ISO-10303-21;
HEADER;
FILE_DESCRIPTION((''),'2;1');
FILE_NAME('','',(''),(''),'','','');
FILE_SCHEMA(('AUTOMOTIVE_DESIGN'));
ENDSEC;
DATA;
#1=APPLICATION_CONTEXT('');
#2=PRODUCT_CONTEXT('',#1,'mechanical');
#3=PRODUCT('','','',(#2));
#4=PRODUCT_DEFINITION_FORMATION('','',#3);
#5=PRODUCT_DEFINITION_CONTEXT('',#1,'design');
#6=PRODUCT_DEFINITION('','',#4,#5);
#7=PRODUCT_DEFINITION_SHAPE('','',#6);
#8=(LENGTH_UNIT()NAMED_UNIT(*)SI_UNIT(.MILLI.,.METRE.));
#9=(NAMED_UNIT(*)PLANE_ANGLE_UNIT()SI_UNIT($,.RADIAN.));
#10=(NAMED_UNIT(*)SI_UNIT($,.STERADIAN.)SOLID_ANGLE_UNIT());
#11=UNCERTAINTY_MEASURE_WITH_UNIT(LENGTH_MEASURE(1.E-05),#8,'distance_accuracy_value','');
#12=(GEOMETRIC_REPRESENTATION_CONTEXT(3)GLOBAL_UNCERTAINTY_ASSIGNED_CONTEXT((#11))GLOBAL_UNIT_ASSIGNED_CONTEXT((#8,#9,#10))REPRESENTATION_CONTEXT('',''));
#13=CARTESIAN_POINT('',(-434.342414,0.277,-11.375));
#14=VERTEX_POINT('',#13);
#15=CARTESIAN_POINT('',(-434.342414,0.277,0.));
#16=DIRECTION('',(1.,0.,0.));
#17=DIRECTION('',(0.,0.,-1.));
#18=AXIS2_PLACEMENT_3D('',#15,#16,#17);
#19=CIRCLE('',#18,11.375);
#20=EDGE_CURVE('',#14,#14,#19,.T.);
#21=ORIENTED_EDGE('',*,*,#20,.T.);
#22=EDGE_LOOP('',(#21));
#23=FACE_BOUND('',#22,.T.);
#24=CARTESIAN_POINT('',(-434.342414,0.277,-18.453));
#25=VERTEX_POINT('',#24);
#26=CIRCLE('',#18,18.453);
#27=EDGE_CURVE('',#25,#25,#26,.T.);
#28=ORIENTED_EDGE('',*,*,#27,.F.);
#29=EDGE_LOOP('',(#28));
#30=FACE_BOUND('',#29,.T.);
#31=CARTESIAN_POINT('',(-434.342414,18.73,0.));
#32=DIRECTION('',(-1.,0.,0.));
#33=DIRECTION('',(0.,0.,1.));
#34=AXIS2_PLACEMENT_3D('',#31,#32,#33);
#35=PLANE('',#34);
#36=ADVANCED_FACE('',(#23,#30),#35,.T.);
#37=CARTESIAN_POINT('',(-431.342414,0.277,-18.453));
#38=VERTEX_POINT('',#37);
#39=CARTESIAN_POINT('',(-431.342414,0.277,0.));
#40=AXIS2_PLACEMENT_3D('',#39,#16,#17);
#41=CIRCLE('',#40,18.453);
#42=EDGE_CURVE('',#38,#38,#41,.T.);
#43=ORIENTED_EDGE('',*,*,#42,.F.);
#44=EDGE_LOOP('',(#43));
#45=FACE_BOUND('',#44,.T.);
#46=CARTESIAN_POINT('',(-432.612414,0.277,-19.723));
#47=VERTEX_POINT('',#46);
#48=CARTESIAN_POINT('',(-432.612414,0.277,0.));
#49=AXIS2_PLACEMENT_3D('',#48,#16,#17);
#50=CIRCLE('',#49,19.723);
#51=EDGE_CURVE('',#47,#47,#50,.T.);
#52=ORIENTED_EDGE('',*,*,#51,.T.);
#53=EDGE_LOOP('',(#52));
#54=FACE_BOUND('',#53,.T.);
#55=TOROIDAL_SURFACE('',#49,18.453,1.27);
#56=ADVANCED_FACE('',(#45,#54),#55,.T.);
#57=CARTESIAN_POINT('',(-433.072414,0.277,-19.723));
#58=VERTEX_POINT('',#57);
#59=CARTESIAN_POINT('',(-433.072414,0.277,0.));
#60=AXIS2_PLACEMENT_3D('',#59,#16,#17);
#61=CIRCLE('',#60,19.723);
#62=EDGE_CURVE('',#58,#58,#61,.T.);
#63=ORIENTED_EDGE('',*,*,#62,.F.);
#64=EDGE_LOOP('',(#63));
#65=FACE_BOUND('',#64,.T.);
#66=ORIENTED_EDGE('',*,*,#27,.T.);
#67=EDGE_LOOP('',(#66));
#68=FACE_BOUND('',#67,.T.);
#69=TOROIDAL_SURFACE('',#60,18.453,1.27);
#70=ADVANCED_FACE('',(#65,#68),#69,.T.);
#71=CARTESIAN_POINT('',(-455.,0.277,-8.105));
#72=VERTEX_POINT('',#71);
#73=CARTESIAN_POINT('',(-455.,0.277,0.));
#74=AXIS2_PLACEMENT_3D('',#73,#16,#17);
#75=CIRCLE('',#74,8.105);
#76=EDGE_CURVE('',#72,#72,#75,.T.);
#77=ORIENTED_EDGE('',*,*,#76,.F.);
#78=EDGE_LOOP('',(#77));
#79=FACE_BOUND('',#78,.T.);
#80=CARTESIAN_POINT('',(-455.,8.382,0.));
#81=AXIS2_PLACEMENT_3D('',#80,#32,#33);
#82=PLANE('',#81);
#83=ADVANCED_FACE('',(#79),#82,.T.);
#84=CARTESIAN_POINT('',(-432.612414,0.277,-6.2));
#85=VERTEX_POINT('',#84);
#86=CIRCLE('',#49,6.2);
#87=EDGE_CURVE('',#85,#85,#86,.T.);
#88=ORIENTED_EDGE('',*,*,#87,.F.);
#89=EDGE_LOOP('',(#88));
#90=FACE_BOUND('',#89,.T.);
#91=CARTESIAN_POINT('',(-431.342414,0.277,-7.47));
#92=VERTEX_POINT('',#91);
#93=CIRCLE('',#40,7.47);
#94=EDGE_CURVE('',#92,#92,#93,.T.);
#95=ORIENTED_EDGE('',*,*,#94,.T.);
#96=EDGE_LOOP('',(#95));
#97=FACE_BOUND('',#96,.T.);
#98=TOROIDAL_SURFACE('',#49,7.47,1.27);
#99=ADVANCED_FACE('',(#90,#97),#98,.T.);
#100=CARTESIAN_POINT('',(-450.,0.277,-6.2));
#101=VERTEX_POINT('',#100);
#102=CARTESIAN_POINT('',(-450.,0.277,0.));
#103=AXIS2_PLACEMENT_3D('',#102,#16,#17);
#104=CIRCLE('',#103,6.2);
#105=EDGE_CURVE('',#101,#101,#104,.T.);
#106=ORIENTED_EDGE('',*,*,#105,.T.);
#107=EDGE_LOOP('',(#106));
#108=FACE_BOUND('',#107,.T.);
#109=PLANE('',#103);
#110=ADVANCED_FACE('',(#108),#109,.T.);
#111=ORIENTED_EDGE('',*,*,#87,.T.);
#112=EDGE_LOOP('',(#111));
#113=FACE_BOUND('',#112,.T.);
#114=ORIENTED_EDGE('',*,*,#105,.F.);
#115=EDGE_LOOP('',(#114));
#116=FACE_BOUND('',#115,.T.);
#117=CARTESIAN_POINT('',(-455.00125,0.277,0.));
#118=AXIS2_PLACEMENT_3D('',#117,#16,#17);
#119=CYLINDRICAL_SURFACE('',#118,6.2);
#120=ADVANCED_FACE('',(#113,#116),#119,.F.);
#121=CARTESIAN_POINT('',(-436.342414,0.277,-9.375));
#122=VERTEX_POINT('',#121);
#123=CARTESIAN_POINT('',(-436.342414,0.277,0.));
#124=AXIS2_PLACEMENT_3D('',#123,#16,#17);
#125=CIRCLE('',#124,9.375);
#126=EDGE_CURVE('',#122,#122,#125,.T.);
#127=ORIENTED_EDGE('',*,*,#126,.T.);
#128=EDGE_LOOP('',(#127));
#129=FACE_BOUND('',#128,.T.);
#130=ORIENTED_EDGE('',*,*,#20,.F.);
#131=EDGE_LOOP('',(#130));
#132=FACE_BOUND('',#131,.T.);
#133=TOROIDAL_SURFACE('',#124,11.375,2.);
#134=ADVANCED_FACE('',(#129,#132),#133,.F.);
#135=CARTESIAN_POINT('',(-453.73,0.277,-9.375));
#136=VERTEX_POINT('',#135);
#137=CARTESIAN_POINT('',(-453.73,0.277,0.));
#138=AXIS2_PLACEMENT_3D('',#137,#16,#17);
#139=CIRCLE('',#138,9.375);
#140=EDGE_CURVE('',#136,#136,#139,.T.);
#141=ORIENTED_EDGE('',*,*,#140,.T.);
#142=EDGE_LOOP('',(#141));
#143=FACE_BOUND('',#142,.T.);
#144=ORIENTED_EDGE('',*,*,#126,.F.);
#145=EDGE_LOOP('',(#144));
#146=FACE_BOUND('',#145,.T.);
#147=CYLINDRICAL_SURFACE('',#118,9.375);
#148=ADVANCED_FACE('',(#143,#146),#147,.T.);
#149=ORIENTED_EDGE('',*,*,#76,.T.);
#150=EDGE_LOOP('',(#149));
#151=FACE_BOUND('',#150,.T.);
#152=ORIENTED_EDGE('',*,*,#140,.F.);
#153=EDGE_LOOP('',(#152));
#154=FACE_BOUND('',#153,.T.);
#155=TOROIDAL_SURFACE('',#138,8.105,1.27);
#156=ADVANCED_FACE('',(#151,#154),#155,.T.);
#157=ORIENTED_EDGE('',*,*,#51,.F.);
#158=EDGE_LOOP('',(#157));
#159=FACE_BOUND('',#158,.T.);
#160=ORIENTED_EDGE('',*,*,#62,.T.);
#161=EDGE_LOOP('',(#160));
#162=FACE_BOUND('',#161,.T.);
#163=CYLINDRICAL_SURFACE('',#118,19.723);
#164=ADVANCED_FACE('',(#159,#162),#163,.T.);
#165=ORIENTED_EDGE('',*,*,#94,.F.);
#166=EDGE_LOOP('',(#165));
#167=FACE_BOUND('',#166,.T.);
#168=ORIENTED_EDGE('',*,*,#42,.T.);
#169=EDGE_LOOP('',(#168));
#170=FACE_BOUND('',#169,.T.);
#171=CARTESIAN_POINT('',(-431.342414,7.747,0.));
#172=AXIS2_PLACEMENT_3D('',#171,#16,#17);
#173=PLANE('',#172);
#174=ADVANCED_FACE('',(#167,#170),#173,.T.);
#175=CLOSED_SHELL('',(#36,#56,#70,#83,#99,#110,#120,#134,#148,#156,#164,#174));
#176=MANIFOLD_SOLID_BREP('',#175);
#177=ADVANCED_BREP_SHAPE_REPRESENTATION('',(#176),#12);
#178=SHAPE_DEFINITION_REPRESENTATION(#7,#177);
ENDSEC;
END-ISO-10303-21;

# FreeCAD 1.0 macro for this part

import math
import FreeCAD as App
import Part
import Sketcher

doc = App.newDocument("Part")
params = doc.addObject("Spreadsheet::Sheet", "Params")
for row, (alias, value) in enumerate([
    ("sketch1_radius", "2 mm"),
    ("sketch1_width", "5 mm"),
    ("sketch1_radius2", "1.27 mm"),
    ("sketch1_height", "6.2 mm"),
    ("revolution_angle", "360 deg"),
], start=1):
    params.set(f"A{row}", alias)
    params.set(f"B{row}", "=" + value)
    params.setAlias(f"B{row}", alias)

body = doc.addObject("PartDesign::Body", "Body")

sketch1 = body.newObject("Sketcher::SketchObject", "Sketch")
sketch1.AttachmentSupport = (doc.getObject("XY_Plane"), [""])
sketch1.MapMode = "FlatFace"
sketch1.addGeometry(Part.LineSegment(App.Vector(-455, 8.38, 0), App.Vector(-455, 0.28, 0)), False)
sketch1.addGeometry(Part.LineSegment(App.Vector(-455, 0.28, 0), App.Vector(-450, 0.28, 0)), False)
sketch1.addGeometry(Part.LineSegment(App.Vector(-450, 0.28, 0), App.Vector(-450, 6.48, 0)), False)
sketch1.addGeometry(Part.LineSegment(App.Vector(-450, 6.48, 0), App.Vector(-432.61, 6.48, 0)), False)
sketch1.addGeometry(Part.ArcOfCircle(Part.Circle(App.Vector(-432.61, 7.75, 0), App.Vector(0, 0, 1), 1.27), math.radians(-90), math.radians(0)), False)
sketch1.addGeometry(Part.LineSegment(App.Vector(-431.34, 7.75, 0), App.Vector(-431.34, 18.73, 0)), False)
sketch1.addGeometry(Part.ArcOfCircle(Part.Circle(App.Vector(-432.61, 18.73, 0), App.Vector(0, 0, 1), 1.27), math.radians(0), math.radians(90)), False)
sketch1.addGeometry(Part.LineSegment(App.Vector(-432.61, 20, 0), App.Vector(-433.07, 20, 0)), False)
sketch1.addGeometry(Part.ArcOfCircle(Part.Circle(App.Vector(-433.07, 18.73, 0), App.Vector(0, 0, 1), 1.27), math.radians(90), math.radians(180)), False)
sketch1.addGeometry(Part.LineSegment(App.Vector(-434.34, 18.73, 0), App.Vector(-434.34, 11.65, 0)), False)
sketch1.addGeometry(Part.ArcOfCircle(Part.Circle(App.Vector(-436.34, 11.65, 0), App.Vector(0, 0, 1), 2), math.radians(-90), math.radians(0)), False)
sketch1.addGeometry(Part.LineSegment(App.Vector(-436.34, 9.65, 0), App.Vector(-453.73, 9.65, 0)), False)
sketch1.addGeometry(Part.ArcOfCircle(Part.Circle(App.Vector(-453.73, 8.38, 0), App.Vector(0, 0, 1), 1.27), math.radians(90), math.radians(180)), False)
sketch1.addGeometry(Part.LineSegment(App.Vector(-455, 0.28, 0), App.Vector(-431.34, 0.28, 0)), True)
sketch1.addConstraint(Sketcher.Constraint("Coincident", 0, 2, 1, 1))
sketch1.addConstraint(Sketcher.Constraint("Coincident", 1, 2, 2, 1))
sketch1.addConstraint(Sketcher.Constraint("Coincident", 2, 2, 3, 1))
sketch1.addConstraint(Sketcher.Constraint("Tangent", 3, 2, 4, 1))
sketch1.addConstraint(Sketcher.Constraint("Tangent", 4, 2, 5, 1))
sketch1.addConstraint(Sketcher.Constraint("Tangent", 5, 2, 6, 1))
sketch1.addConstraint(Sketcher.Constraint("Tangent", 6, 2, 7, 1))
sketch1.addConstraint(Sketcher.Constraint("Tangent", 7, 2, 8, 1))
sketch1.addConstraint(Sketcher.Constraint("Tangent", 8, 2, 9, 1))
sketch1.addConstraint(Sketcher.Constraint("Tangent", 9, 2, 10, 2))
sketch1.addConstraint(Sketcher.Constraint("Tangent", 10, 1, 11, 1))
sketch1.addConstraint(Sketcher.Constraint("Tangent", 11, 2, 12, 1))
sketch1.addConstraint(Sketcher.Constraint("Tangent", 12, 2, 0, 1))
sketch1.addConstraint(Sketcher.Constraint("Vertical", 0))
sketch1.addConstraint(Sketcher.Constraint("Horizontal", 1))
sketch1.addConstraint(Sketcher.Constraint("Vertical", 2))
sketch1.addConstraint(Sketcher.Constraint("Horizontal", 3))
sketch1.addConstraint(Sketcher.Constraint("Vertical", 5))
sketch1.addConstraint(Sketcher.Constraint("Horizontal", 7))
sketch1.addConstraint(Sketcher.Constraint("Vertical", 9))
sketch1.addConstraint(Sketcher.Constraint("Horizontal", 11))
sketch1.addConstraint(Sketcher.Constraint("Horizontal", 13))
sketch1.addConstraint(Sketcher.Constraint("Coincident", 13, 1, 0, 2))
sketch1.addConstraint(Sketcher.Constraint("Equal", 4, 6))
sketch1.addConstraint(Sketcher.Constraint("Equal", 6, 8))
sketch1.addConstraint(Sketcher.Constraint("Equal", 8, 12))
sketch1.addConstraint(Sketcher.Constraint("Vertical", 5, 2, 13, 2))
sketch1.addConstraint(Sketcher.Constraint("Equal", 3, 11))
sketch1.addConstraint(Sketcher.Constraint("Radius", 10, 2.0))
sketch1.addConstraint(Sketcher.Constraint("DistanceX", 1, 1, 1, 2, 5.0))
sketch1.addConstraint(Sketcher.Constraint("Radius", 4, 1.27))
sketch1.addConstraint(Sketcher.Constraint("DistanceY", 2, 1, 2, 2, 6.2))
sketch1.addConstraint(Sketcher.Constraint("DistanceX", 0, 2, -1, 1, 455.0))
sketch1.addConstraint(Sketcher.Constraint("DistanceY", -1, 1, 6, 2, 20.0))
sketch1.addConstraint(Sketcher.Constraint("DistanceY", 0, 2, 0, 1, 8.105))
sketch1.addConstraint(Sketcher.Constraint("DistanceY", 5, 1, 5, 2, 10.983))
sketch1.addConstraint(Sketcher.Constraint("DistanceX", 3, 1, 3, 2, 17.387586))
sketch1.setExpression("Constraints[28]", "Params.sketch1_radius")
sketch1.setExpression("Constraints[29]", "Params.sketch1_width")
sketch1.setExpression("Constraints[30]", "Params.sketch1_radius2")
sketch1.setExpression("Constraints[31]", "Params.sketch1_height")
revolution = body.newObject("PartDesign::Revolution", "Revolution")
revolution.Profile = sketch1
revolution.ReferenceAxis = (sketch1, ["Axis0"])
revolution.setExpression("Angle", "Params.revolution_angle")

doc.recompute()
